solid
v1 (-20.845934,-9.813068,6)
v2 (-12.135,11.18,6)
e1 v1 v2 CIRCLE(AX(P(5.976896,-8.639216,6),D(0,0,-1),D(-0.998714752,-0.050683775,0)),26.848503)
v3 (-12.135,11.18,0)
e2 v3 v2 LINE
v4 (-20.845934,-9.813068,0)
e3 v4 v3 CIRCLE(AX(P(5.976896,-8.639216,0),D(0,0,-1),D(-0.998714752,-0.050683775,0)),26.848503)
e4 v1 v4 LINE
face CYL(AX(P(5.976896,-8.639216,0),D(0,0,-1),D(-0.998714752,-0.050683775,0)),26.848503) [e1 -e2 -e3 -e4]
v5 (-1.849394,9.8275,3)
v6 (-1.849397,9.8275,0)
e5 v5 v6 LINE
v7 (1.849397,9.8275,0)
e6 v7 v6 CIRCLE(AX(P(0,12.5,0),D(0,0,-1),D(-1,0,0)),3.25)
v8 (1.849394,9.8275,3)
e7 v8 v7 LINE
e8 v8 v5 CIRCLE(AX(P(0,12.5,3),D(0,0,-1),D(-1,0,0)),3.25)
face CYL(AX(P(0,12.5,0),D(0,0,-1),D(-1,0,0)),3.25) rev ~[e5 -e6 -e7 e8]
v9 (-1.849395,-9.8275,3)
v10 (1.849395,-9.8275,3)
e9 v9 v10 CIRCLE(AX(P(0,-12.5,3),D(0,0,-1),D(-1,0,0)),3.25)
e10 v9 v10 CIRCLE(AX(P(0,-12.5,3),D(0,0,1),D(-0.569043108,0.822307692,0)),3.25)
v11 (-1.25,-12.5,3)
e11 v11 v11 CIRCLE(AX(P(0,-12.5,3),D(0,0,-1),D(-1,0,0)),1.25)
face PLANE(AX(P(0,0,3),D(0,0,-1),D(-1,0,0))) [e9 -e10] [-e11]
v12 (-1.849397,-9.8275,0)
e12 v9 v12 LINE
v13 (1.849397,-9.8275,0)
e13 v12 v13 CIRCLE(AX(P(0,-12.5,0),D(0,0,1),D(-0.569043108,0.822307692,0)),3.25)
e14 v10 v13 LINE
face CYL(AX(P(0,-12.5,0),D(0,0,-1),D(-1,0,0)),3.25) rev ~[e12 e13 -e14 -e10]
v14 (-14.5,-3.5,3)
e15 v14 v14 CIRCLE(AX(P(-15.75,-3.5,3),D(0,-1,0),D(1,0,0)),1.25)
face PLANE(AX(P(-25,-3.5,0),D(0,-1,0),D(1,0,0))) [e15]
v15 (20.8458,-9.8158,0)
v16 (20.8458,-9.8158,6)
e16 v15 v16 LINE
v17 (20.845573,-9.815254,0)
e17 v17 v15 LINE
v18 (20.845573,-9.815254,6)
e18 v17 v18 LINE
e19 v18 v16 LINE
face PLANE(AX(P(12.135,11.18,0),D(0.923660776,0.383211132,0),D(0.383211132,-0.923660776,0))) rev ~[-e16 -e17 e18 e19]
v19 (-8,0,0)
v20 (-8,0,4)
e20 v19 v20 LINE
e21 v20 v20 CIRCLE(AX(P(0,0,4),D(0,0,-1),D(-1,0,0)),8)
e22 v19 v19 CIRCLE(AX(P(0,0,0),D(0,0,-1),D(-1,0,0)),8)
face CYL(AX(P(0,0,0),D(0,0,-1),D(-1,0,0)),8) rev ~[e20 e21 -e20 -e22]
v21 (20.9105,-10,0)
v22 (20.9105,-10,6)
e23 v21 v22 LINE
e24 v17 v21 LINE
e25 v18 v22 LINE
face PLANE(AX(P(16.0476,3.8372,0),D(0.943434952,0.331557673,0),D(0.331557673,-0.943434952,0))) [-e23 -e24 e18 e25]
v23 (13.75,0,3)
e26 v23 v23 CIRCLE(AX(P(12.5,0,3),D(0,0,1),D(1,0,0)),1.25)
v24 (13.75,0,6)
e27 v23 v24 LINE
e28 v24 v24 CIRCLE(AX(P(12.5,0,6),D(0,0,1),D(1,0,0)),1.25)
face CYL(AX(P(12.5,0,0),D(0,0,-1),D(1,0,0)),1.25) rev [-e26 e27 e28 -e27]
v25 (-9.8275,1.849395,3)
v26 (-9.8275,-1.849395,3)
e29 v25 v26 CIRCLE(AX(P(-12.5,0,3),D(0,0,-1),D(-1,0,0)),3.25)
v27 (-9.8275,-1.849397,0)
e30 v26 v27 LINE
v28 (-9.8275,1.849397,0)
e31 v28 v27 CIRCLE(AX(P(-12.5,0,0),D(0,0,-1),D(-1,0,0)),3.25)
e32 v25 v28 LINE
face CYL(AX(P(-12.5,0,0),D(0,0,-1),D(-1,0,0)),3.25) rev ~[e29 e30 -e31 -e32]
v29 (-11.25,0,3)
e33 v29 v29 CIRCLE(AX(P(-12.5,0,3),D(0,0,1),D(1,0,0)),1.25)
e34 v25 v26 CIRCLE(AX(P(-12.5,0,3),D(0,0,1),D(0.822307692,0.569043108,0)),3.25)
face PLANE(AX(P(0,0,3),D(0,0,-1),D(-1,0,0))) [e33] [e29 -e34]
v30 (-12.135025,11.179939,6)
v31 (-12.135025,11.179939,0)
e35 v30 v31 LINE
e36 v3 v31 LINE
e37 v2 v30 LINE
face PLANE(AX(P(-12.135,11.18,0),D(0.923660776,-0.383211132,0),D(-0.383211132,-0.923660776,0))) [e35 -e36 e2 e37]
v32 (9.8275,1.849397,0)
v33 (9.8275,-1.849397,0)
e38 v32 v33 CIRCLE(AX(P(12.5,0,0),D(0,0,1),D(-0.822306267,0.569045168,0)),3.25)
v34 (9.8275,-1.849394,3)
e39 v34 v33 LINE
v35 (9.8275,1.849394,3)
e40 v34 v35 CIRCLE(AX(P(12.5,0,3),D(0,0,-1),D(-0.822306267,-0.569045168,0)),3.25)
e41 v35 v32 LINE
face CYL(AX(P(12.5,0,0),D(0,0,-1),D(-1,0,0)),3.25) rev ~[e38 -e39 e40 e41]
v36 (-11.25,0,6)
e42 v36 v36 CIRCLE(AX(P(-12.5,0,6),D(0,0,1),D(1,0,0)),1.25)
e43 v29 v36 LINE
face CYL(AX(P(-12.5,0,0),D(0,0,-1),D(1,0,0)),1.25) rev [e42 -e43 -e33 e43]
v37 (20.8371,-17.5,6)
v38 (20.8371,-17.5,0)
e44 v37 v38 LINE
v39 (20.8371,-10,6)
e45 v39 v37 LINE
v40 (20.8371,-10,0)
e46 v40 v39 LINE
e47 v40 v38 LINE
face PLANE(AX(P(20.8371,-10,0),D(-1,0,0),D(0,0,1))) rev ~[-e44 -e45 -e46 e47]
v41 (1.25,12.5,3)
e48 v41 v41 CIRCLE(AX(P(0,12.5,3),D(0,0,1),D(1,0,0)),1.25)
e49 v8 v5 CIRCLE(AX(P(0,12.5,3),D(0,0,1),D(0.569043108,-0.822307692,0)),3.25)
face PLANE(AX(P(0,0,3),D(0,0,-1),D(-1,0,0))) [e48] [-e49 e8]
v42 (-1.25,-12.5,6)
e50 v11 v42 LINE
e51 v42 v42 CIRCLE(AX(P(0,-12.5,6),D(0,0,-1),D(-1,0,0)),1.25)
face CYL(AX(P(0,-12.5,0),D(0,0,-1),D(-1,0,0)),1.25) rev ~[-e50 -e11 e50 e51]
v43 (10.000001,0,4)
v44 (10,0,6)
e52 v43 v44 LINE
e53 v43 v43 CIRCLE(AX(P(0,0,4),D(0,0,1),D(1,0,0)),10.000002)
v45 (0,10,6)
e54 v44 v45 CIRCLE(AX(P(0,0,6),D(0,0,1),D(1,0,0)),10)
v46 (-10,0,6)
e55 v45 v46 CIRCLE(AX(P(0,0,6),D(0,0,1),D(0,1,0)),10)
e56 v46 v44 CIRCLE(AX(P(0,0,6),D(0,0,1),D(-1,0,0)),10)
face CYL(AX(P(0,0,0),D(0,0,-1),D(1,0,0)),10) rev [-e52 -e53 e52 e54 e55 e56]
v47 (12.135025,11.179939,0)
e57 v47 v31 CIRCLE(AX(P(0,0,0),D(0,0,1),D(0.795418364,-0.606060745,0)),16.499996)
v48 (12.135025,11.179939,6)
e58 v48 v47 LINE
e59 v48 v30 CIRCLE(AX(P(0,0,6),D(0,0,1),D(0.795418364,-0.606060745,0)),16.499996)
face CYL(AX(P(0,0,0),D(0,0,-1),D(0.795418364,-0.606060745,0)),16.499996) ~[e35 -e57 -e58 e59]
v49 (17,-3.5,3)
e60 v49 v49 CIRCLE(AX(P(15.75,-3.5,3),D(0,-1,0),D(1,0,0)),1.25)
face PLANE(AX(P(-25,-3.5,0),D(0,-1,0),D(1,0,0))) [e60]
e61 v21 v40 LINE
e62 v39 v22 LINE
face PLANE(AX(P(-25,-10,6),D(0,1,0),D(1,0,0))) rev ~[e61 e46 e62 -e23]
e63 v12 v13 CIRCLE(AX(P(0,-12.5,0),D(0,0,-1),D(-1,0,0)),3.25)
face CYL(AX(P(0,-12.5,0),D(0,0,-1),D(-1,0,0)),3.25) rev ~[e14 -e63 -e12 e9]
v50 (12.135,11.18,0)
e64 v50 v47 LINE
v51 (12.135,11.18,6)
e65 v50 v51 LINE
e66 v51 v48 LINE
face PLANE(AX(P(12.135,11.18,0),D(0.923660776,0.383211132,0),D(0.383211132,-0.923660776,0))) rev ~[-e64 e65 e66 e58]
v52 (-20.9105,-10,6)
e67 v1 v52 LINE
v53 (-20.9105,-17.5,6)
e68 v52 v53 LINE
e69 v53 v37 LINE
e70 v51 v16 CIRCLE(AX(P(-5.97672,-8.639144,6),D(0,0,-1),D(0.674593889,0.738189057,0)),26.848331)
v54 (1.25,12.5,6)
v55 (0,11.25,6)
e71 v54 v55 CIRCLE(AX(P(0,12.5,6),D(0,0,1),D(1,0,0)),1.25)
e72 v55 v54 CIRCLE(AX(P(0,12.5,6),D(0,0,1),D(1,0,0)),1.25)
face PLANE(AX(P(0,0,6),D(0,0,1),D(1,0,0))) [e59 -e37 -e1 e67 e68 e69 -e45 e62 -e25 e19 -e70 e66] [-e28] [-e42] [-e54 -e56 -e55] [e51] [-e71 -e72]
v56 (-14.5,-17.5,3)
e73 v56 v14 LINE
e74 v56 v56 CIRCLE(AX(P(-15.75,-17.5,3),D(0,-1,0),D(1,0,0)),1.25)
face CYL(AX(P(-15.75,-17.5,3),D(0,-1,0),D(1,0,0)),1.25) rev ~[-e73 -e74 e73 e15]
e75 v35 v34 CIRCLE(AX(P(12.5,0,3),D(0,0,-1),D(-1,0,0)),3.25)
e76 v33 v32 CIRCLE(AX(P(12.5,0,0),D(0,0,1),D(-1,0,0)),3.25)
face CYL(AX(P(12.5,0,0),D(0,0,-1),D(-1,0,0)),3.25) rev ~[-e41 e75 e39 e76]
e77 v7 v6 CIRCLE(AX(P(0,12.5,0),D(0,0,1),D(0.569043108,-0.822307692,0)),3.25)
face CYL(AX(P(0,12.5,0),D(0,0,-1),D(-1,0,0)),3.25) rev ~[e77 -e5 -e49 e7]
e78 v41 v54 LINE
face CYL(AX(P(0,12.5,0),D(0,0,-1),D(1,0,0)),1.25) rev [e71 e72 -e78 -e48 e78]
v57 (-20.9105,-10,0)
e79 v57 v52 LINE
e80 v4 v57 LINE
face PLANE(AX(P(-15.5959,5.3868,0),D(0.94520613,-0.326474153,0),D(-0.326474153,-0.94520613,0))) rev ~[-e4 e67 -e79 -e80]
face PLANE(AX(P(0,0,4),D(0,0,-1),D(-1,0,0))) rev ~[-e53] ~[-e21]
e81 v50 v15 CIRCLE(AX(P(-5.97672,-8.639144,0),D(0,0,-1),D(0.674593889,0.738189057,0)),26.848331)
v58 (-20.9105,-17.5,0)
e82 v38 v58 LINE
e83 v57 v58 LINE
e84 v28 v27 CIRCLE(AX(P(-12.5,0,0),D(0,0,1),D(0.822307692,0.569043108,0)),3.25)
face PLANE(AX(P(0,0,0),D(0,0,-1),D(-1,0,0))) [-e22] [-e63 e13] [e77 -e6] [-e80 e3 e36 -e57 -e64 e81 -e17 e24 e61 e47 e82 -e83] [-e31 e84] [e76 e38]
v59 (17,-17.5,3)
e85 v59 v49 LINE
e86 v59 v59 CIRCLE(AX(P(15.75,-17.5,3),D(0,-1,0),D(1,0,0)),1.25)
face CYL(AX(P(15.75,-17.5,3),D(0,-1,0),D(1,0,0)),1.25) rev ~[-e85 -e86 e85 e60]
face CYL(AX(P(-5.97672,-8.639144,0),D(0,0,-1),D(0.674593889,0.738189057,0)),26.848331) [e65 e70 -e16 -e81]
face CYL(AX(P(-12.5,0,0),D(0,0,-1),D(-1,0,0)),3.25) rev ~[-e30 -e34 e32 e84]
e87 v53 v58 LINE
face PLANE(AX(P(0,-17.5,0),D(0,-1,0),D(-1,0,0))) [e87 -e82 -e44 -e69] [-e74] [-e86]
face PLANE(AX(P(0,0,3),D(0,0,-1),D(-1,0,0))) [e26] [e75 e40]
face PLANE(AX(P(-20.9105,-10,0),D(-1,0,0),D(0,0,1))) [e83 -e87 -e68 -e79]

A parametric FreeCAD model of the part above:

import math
import FreeCAD as App
import Part
import Sketcher


def edges_at(feature, points):
    """Names of the edges that pass closest to the given points."""
    edges = feature.Shape.Edges
    near = lambda p: min(range(len(edges)), key=lambda i: edges[i].distToShape(Part.Vertex(*p))[0])
    return sorted({f"Edge{near(p) + 1}" for p in points})


def add_polygon(sketch, points):
    """Adds a closed chain of lines whose ends are joined by coincident constraints."""
    first, n = sketch.GeometryCount, len(points)
    for a, b in zip(points, points[1:] + points[:1]):
        sketch.addGeometry(Part.LineSegment(App.Vector(*a, 0), App.Vector(*b, 0)), False)
    for i in range(n):
        sketch.addConstraint(Sketcher.Constraint("Coincident", first + i, 2, first + (i + 1) % n, 1))

doc = App.newDocument("Part")
body = doc.addObject("PartDesign::Body", "Body")

# Sketch on XY plane
sketch1 = doc.addObject("Sketcher::SketchObject", "Sketch")
body.addObject(sketch1)
sketch1.AttachmentSupport = (doc.XY_Plane, [""])
sketch1.MapMode = "FlatFace"
sketch1.addGeometry([
    Part.LineSegment(App.Vector(-25, -17.5, 0), App.Vector(25, -17.5, 0)),  # 0
    Part.LineSegment(App.Vector(25, -17.5, 0), App.Vector(25, -10, 0)),  # 1
    Part.LineSegment(App.Vector(25, -10, 0), App.Vector(13.1, -10, 0)),  # 2
    Part.ArcOfCircle(Part.Circle(App.Vector(0, 0, 0), App.Vector(0, 0, 1), 16.5), math.radians(-37), math.radians(217)),  # 3
    Part.LineSegment(App.Vector(-13.1, -10, 0), App.Vector(-25, -10, 0)),  # 4
    Part.LineSegment(App.Vector(-25, -10, 0), App.Vector(-25, -17.5, 0)),  # 5
    Part.ArcOfCircle(Part.Circle(App.Vector(0, 0, 0), App.Vector(0, 0, 1), 10), math.radians(90), math.radians(180)),  # 6
    Part.ArcOfCircle(Part.Circle(App.Vector(0, 0, 0), App.Vector(0, 0, 1), 10), math.radians(180), math.radians(450)),  # 7
    Part.Circle(App.Vector(12.5, 0, 0), App.Vector(0, 0, 1), 1.2),  # 8
    Part.Circle(App.Vector(0, 12.5, 0), App.Vector(0, 0, 1), 1.2),  # 9
    Part.Circle(App.Vector(-12.5, 0, 0), App.Vector(0, 0, 1), 1.2),  # 10
], False)
sketch1.addConstraint([
    Sketcher.Constraint("Coincident", 0, 2, 1, 1),
    Sketcher.Constraint("Coincident", 1, 2, 2, 1),
    Sketcher.Constraint("Coincident", 2, 2, 3, 1),
    Sketcher.Constraint("Coincident", 3, 2, 4, 1),
    Sketcher.Constraint("Coincident", 4, 2, 5, 1),
    Sketcher.Constraint("Coincident", 5, 2, 0, 1),
    Sketcher.Constraint("Tangent", 6, 1, 7, 2),
    Sketcher.Constraint("Coincident", 7, 1, 6, 2),
    Sketcher.Constraint("Horizontal", 0),
    Sketcher.Constraint("Vertical", 1),
    Sketcher.Constraint("Horizontal", 2),
    Sketcher.Constraint("Horizontal", 4),
    Sketcher.Constraint("Vertical", 5),
    Sketcher.Constraint("Coincident", 3, 3, -1, 1),
    Sketcher.Constraint("Coincident", 6, 3, -1, 1),
    Sketcher.Constraint("Equal", 8, 9),
    Sketcher.Constraint("Equal", 9, 10),
    Sketcher.Constraint("Symmetric", 8, 3, 10, 3, -1, 1),
    Sketcher.Constraint("Symmetric", 1, 2, 4, 2, -2),
    Sketcher.Constraint("PointOnObject", 8, 3, -1),
    Sketcher.Constraint("PointOnObject", 9, 3, -2),
    Sketcher.Constraint("PointOnObject", 6, 1, -2),
    Sketcher.Constraint("PointOnObject", 7, 1, -1),
    Sketcher.Constraint("Radius", 6, 10.0),
    Sketcher.Constraint("Diameter", 8, 2.5),
    Sketcher.Constraint("Radius", 3, 16.5),
    Sketcher.Constraint("DistanceX", -1, 1, 0, 2, 25.0),
    Sketcher.Constraint("DistanceX", 10, 3, 8, 3, 25.0),
    Sketcher.Constraint("DistanceY", -1, 1, 9, 3, 12.5),
    Sketcher.Constraint("DistanceY", 0, 2, -1, 1, 17.5),
    Sketcher.Constraint("DistanceY", 1, 1, 1, 2, 7.5),
])
pad1 = doc.addObject("PartDesign::Pad", "Pad")
body.addObject(pad1)
pad1.Profile = sketch1
pad1.Length = 6
doc.recompute()

fillet = doc.addObject("PartDesign::Fillet", "Fillet")
body.addObject(fillet)
fillet.Base = (pad1, edges_at(pad1, [(13.124, -10, 3), (-13.124, -10, 3)]))
fillet.Radius = 5

# Sketch on XY plane
sketch2 = doc.addObject("Sketcher::SketchObject", "Sketch001")
body.addObject(sketch2)
sketch2.AttachmentSupport = (doc.XY_Plane, [""])
sketch2.MapMode = "FlatFace"
sketch2.addGeometry(Part.Circle(App.Vector(0, -12.5, 0), App.Vector(0, 0, 1), 1.2), False)
sketch2.addConstraint([
    Sketcher.Constraint("PointOnObject", 0, 3, -2),
    Sketcher.Constraint("Diameter", 0, 2.5),
    Sketcher.Constraint("DistanceY", 0, 3, -1, 1, 12.5),
])
pocket1 = doc.addObject("PartDesign::Pocket", "Pocket")
body.addObject(pocket1)
pocket1.Profile = sketch2
pocket1.Length = 10
pocket1.Reversed = True

# Sketch on XY plane
sketch3 = doc.addObject("Sketcher::SketchObject", "Sketch002")
body.addObject(sketch3)
sketch3.AttachmentSupport = (doc.XY_Plane, [""])
sketch3.MapMode = "FlatFace"
sketch3.addGeometry([
    Part.Circle(App.Vector(-12.5, 0, 0), App.Vector(0, 0, 1), 3.2),  # 0
    Part.Circle(App.Vector(-12.5, 0, 0), App.Vector(0, 0, 1), 1.2),  # 1
    Part.Circle(App.Vector(0, 12.5, 0), App.Vector(0, 0, 1), 3.2),  # 2
    Part.Circle(App.Vector(0, 12.5, 0), App.Vector(0, 0, 1), 1.2),  # 3
    Part.Circle(App.Vector(0, -12.5, 0), App.Vector(0, 0, 1), 3.2),  # 4
    Part.Circle(App.Vector(0, -12.5, 0), App.Vector(0, 0, 1), 1.2),  # 5
    Part.Circle(App.Vector(12.5, 0, 0), App.Vector(0, 0, 1), 3.2),  # 6
    Part.Circle(App.Vector(12.5, 0, 0), App.Vector(0, 0, 1), 1.2),  # 7
], False)
sketch3.addConstraint([
    Sketcher.Constraint("Coincident", 1, 3, 0, 3),
    Sketcher.Constraint("Coincident", 3, 3, 2, 3),
    Sketcher.Constraint("Coincident", 5, 3, 4, 3),
    Sketcher.Constraint("Coincident", 7, 3, 6, 3),
    Sketcher.Constraint("Equal", 0, 2),
    Sketcher.Constraint("Equal", 1, 3),
    Sketcher.Constraint("Equal", 2, 4),
    Sketcher.Constraint("Equal", 3, 5),
    Sketcher.Constraint("Equal", 4, 6),
    Sketcher.Constraint("Equal", 5, 7),
    Sketcher.Constraint("Symmetric", 2, 3, 4, 3, -1, 1),
    Sketcher.Constraint("Symmetric", 0, 3, 6, 3, -1, 1),
    Sketcher.Constraint("PointOnObject", 0, 3, -1),
    Sketcher.Constraint("PointOnObject", 2, 3, -2),
    Sketcher.Constraint("Diameter", 0, 6.5),
    Sketcher.Constraint("Diameter", 1, 2.5),
    Sketcher.Constraint("DistanceY", 4, 3, 2, 3, 25.0),
    Sketcher.Constraint("DistanceX", 0, 3, 6, 3, 25.0),
])
pocket2 = doc.addObject("PartDesign::Pocket", "Pocket001")
body.addObject(pocket2)
pocket2.Profile = sketch3
pocket2.Length = 3
pocket2.Reversed = True

# Sketch on XY plane
sketch4 = doc.addObject("Sketcher::SketchObject", "Sketch003")
body.addObject(sketch4)
sketch4.AttachmentSupport = (doc.XY_Plane, [""])
sketch4.MapMode = "FlatFace"
sketch4.addGeometry([
    Part.ArcOfCircle(Part.Circle(App.Vector(0, 0, 0), App.Vector(0, 0, 1), 16.5), math.radians(-13), math.radians(13)),  # 0
    Part.LineSegment(App.Vector(16, 3.8, 0), App.Vector(20.9, -10, 0)),  # 1
    Part.ArcOfCircle(Part.Circle(App.Vector(20.9, -5, 0), App.Vector(0, 0, 1), 5), math.radians(167), math.radians(270)),  # 2
    Part.ArcOfCircle(Part.Circle(App.Vector(0, 0, 0), App.Vector(0, 0, 1), 16.5), math.radians(161), math.radians(193)),  # 3
    Part.ArcOfCircle(Part.Circle(App.Vector(-20.9, -5, 0), App.Vector(0, 0, 1), 5), math.radians(-90), math.radians(13)),  # 4
    Part.LineSegment(App.Vector(-20.9, -10, 0), App.Vector(-15.6, 5.4, 0)),  # 5
], False)
sketch4.addConstraint([
    Sketcher.Constraint("Coincident", 0, 2, 1, 1),
    Sketcher.Constraint("Coincident", 1, 2, 2, 2),
    Sketcher.Constraint("Tangent", 2, 1, 0, 1),
    Sketcher.Constraint("Tangent", 3, 2, 4, 2),
    Sketcher.Constraint("Coincident", 4, 1, 5, 1),
    Sketcher.Constraint("Tangent", 5, 2, 3, 1),
    Sketcher.Constraint("Coincident", 0, 3, -1, 1),
    Sketcher.Constraint("Coincident", 3, 3, -1, 1),
    Sketcher.Constraint("Equal", 0, 3),
    Sketcher.Constraint("Equal", 2, 4),
    Sketcher.Constraint("Symmetric", 1, 2, 4, 1, -2),
    Sketcher.Constraint("Vertical", 2, 3, 1, 2),
    Sketcher.Constraint("Vertical", 0, 2, 2, 1),
    Sketcher.Constraint("Radius", 2, 5.0),
    Sketcher.Constraint("Radius", 0, 16.5),
    Sketcher.Constraint("DistanceY", 2, 3, -1, 1, 5.0),
])
pad2 = doc.addObject("PartDesign::Pad", "Pad001")
body.addObject(pad2)
pad2.Profile = sketch4
pad2.Length = 6

# Sketch on XZ plane
sketch5 = doc.addObject("Sketcher::SketchObject", "Sketch004")
body.addObject(sketch5)
sketch5.AttachmentSupport = (doc.XZ_Plane, [""])
sketch5.MapMode = "FlatFace"
sketch5.AttachmentOffset = App.Placement(App.Vector(0, 0, 17.5), App.Rotation())
sketch5.addGeometry([
    Part.Circle(App.Vector(15.8, 3, 0), App.Vector(0, 0, 1), 1.2),
    Part.Circle(App.Vector(-15.8, 3, 0), App.Vector(0, 0, 1), 1.2),
], False)
sketch5.addConstraint([
    Sketcher.Constraint("Equal", 0, 1),
    Sketcher.Constraint("Symmetric", 0, 3, 1, 3, -2),
    Sketcher.Constraint("Diameter", 0, 2.5),
    Sketcher.Constraint("DistanceY", -1, 1, 0, 3, 3.0),
    Sketcher.Constraint("DistanceX", 1, 3, 0, 3, 31.5),
])
pocket3 = doc.addObject("PartDesign::Pocket", "Pocket002")
body.addObject(pocket3)
pocket3.Profile = sketch5
pocket3.Length = 14

# Sketch on XZ plane
sketch6 = doc.addObject("Sketcher::SketchObject", "Sketch005")
body.addObject(sketch6)
sketch6.AttachmentSupport = (doc.XZ_Plane, [""])
sketch6.MapMode = "FlatFace"
sketch6.AttachmentOffset = App.Placement(App.Vector(0, 0, 10), App.Rotation())
add_polygon(sketch6, [(-20.9, 6), (-20.9, 0), (-25, 0), (-25, 6)])  # lines 0-3
add_polygon(sketch6, [(20.8, 0), (20.8, 6), (25, 6), (25, 0)])  # lines 4-7
sketch6.addConstraint([
    Sketcher.Constraint("Vertical", 0),
    Sketcher.Constraint("Horizontal", 1),
    Sketcher.Constraint("Vertical", 2),
    Sketcher.Constraint("Horizontal", 3),
    Sketcher.Constraint("Vertical", 4),
    Sketcher.Constraint("Horizontal", 5),
    Sketcher.Constraint("Vertical", 6),
    Sketcher.Constraint("Horizontal", 7),
    Sketcher.Constraint("Symmetric", 1, 2, 6, 2, -1, 1),
    Sketcher.Constraint("PointOnObject", 0, 2, -1),
    Sketcher.Constraint("Horizontal", 3, 2, 4, 2),
    Sketcher.Constraint("DistanceY", 0, 2, 0, 1, 6.0),
    Sketcher.Constraint("DistanceX", 1, 2, -1, 1, 25.0),
    Sketcher.Constraint("DistanceX", 5, 1, 5, 2, 4.163),
    Sketcher.Constraint("DistanceX", 1, 2, 1, 1, 4.0895),
])
pocket4 = doc.addObject("PartDesign::Pocket", "Pocket003")
body.addObject(pocket4)
pocket4.Profile = sketch6
pocket4.Length = 14
pocket4.Reversed = True

# Sketch on XY plane
sketch7 = doc.addObject("Sketcher::SketchObject", "Sketch006")
body.addObject(sketch7)
sketch7.AttachmentSupport = (doc.XY_Plane, [""])
sketch7.MapMode = "FlatFace"
sketch7.addGeometry([
    Part.Circle(App.Vector(0, 0, 0), App.Vector(0, 0, 1), 10),
    Part.Circle(App.Vector(0, 0, 0), App.Vector(0, 0, 1), 8),
], False)
sketch7.addConstraint([
    Sketcher.Constraint("Coincident", 0, 3, -1, 1),
    Sketcher.Constraint("Coincident", 1, 3, -1, 1),
    Sketcher.Constraint("Diameter", 1, 16.0),
    Sketcher.Constraint("Diameter", 0, 20.0),
])
pad3 = doc.addObject("PartDesign::Pad", "Pad002")
body.addObject(pad3)
pad3.Profile = sketch7
pad3.Length = 4

# Sketch on XY plane
sketch8 = doc.addObject("Sketcher::SketchObject", "Sketch007")
body.addObject(sketch8)
sketch8.AttachmentSupport = (doc.XY_Plane, [""])
sketch8.MapMode = "FlatFace"
sketch8.addGeometry([
    Part.Circle(App.Vector(12.5, 0, 0), App.Vector(0, 0, 1), 3.3),  # 0
    Part.Circle(App.Vector(0, 12.5, 0), App.Vector(0, 0, 1), 3.3),  # 1
    Part.Circle(App.Vector(-12.5, 0, 0), App.Vector(0, 0, 1), 3.3),  # 2
    Part.Circle(App.Vector(-12.5, 0, 0), App.Vector(0, 0, 1), 1.2),  # 3
    Part.Circle(App.Vector(0, -12.5, 0), App.Vector(0, 0, 1), 3.3),  # 4
    Part.Circle(App.Vector(0, -12.5, 0), App.Vector(0, 0, 1), 1.2),  # 5
], False)
sketch8.addConstraint([
    Sketcher.Constraint("Coincident", 3, 3, 2, 3),
    Sketcher.Constraint("Coincident", 5, 3, 4, 3),
    Sketcher.Constraint("Equal", 0, 1),
    Sketcher.Constraint("Equal", 1, 2),
    Sketcher.Constraint("Equal", 2, 4),
    Sketcher.Constraint("Equal", 3, 5),
    Sketcher.Constraint("Symmetric", 0, 3, 2, 3, -1, 1),
    Sketcher.Constraint("Symmetric", 1, 3, 4, 3, -1, 1),
    Sketcher.Constraint("PointOnObject", 0, 3, -1),
    Sketcher.Constraint("PointOnObject", 1, 3, -2),
    Sketcher.Constraint("Diameter", 0, 6.5),
    Sketcher.Constraint("Diameter", 3, 2.5),
    Sketcher.Constraint("DistanceX", 2, 3, 0, 3, 25.0),
    Sketcher.Constraint("DistanceY", 4, 3, 1, 3, 25.0),
])
pocket5 = doc.addObject("PartDesign::Pocket", "Pocket004")
body.addObject(pocket5)
pocket5.Profile = sketch8
pocket5.Length = 3
pocket5.Reversed = True

# Sketch on XY plane
sketch9 = doc.addObject("Sketcher::SketchObject", "Sketch008")
body.addObject(sketch9)
sketch9.AttachmentSupport = (doc.XY_Plane, [""])
sketch9.MapMode = "FlatFace"
sketch9.addGeometry([
    Part.LineSegment(App.Vector(21, -10, 0), App.Vector(12, 11, 0)),
    Part.ArcOfCircle(Part.Circle(App.Vector(-6, -9, 0), App.Vector(0, 0, 1), 27), math.radians(-3), math.radians(48)),
    Part.LineSegment(App.Vector(-12, 11, 0), App.Vector(-21, -10, 0)),
    Part.ArcOfCircle(Part.Circle(App.Vector(6, -9, 0), App.Vector(0, 0, 1), 27), math.radians(132), math.radians(183)),
], False)
sketch9.addConstraint([
    Sketcher.Constraint("Coincident", 0, 1, 1, 1),
    Sketcher.Constraint("Coincident", 1, 2, 0, 2),
    Sketcher.Constraint("Coincident", 2, 1, 3, 1),
    Sketcher.Constraint("Coincident", 3, 2, 2, 2),
    Sketcher.Constraint("Equal", 1, 3),
    Sketcher.Constraint("Symmetric", 1, 3, 3, 3, -2),
    Sketcher.Constraint("Horizontal", 1, 2, 2, 1),
    Sketcher.Constraint("Horizontal", 0, 1, 3, 2),
    Sketcher.Constraint("Radius", 1, 26.8484),
    Sketcher.Constraint("DistanceY", -1, 1, 1, 2, 11.18),
    Sketcher.Constraint("DistanceX", 2, 1, 1, 2, 24.27),
    Sketcher.Constraint("Distance", 0, 22.731),
    Sketcher.Constraint("DistanceX", 3, 3, 0, 1, 14.869),
])
pad4 = doc.addObject("PartDesign::Pad", "Pad003")
body.addObject(pad4)
pad4.Profile = sketch9
pad4.Length = 6

doc.recompute()
